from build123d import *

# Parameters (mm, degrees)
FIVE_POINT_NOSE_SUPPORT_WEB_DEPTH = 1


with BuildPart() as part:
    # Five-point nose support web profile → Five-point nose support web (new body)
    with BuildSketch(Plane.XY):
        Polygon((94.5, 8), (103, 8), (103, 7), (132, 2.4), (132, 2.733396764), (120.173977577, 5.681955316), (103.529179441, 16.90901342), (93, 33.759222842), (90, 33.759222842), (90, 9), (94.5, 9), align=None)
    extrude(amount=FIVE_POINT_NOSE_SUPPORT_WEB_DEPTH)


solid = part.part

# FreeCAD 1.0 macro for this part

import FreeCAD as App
import Part
import Sketcher

V = App.Vector
Q = App.Units.Quantity

doc = App.newDocument("Part")
params = doc.addObject("Spreadsheet::Sheet", "Params")
for row, (alias, value) in enumerate([
    ("sketch1_width", "3 mm"),
    ("sketch1_height", "1 mm"),
    ("sketch1_width2", "8.5 mm"),
    ("sketch1_width3", "4.5 mm"),
    ("pad1_length", "1 mm"),
], start=1):
    params.set(f"A{row}", alias)
    params.set(f"B{row}", "=" + value)
    params.setAlias(f"B{row}", alias)

body = doc.addObject("PartDesign::Body", "Body")

sketch1 = body.newObject("Sketcher::SketchObject", "Sketch")
sketch1.AttachmentSupport = (doc.getObject("XY_Plane"), [""])
sketch1.MapMode = "FlatFace"
sketch1.addGeometry(Part.LineSegment(V(94.5, 8, 0), V(103, 8, 0)), False)
sketch1.addGeometry(Part.LineSegment(V(103, 8, 0), V(103, 7, 0)), False)
sketch1.addGeometry(Part.LineSegment(V(103, 7, 0), V(132, 2.4, 0)), False)
sketch1.addGeometry(Part.LineSegment(V(132, 2.4, 0), V(132, 2.73, 0)), False)
sketch1.addGeometry(Part.LineSegment(V(132, 2.73, 0), V(120.17, 5.68, 0)), False)
sketch1.addGeometry(Part.LineSegment(V(120.17, 5.68, 0), V(103.53, 16.91, 0)), False)
sketch1.addGeometry(Part.LineSegment(V(103.53, 16.91, 0), V(93, 33.76, 0)), False)
sketch1.addGeometry(Part.LineSegment(V(93, 33.76, 0), V(90, 33.76, 0)), False)
sketch1.addGeometry(Part.LineSegment(V(90, 33.76, 0), V(90, 9, 0)), False)
sketch1.addGeometry(Part.LineSegment(V(90, 9, 0), V(94.5, 9, 0)), False)
sketch1.addGeometry(Part.LineSegment(V(94.5, 9, 0), V(94.5, 8, 0)), False)
sketch1.addConstraint(Sketcher.Constraint("Coincident", 0, 2, 1, 1))
sketch1.addConstraint(Sketcher.Constraint("Coincident", 1, 2, 2, 1))
sketch1.addConstraint(Sketcher.Constraint("Coincident", 2, 2, 3, 1))
sketch1.addConstraint(Sketcher.Constraint("Coincident", 3, 2, 4, 1))
sketch1.addConstraint(Sketcher.Constraint("Coincident", 4, 2, 5, 1))
sketch1.addConstraint(Sketcher.Constraint("Coincident", 5, 2, 6, 1))
sketch1.addConstraint(Sketcher.Constraint("Coincident", 6, 2, 7, 1))
sketch1.addConstraint(Sketcher.Constraint("Coincident", 7, 2, 8, 1))
sketch1.addConstraint(Sketcher.Constraint("Coincident", 8, 2, 9, 1))
sketch1.addConstraint(Sketcher.Constraint("Coincident", 9, 2, 10, 1))
sketch1.addConstraint(Sketcher.Constraint("Coincident", 10, 2, 0, 1))
sketch1.addConstraint(Sketcher.Constraint("Horizontal", 0))
sketch1.addConstraint(Sketcher.Constraint("Vertical", 1))
sketch1.addConstraint(Sketcher.Constraint("Vertical", 3))
sketch1.addConstraint(Sketcher.Constraint("Horizontal", 7))
sketch1.addConstraint(Sketcher.Constraint("Vertical", 8))
sketch1.addConstraint(Sketcher.Constraint("Horizontal", 9))
sketch1.addConstraint(Sketcher.Constraint("Vertical", 10))
sketch1.addConstraint(Sketcher.Constraint("Equal", 1, 10))
sketch1.addConstraint(Sketcher.Constraint("DistanceX", 7, 2, 7, 1, Q("3 mm")))
sketch1.addConstraint(Sketcher.Constraint("DistanceY", 1, 2, 1, 1, Q("1 mm")))
sketch1.addConstraint(Sketcher.Constraint("Angle", 4, Q("166 deg")))
sketch1.addConstraint(Sketcher.Constraint("Angle", 5, Q("146 deg")))
sketch1.addConstraint(Sketcher.Constraint("Angle", 6, Q("122 deg")))
sketch1.addConstraint(Sketcher.Constraint("DistanceX", 0, 1, 0, 2, Q("8.5 mm")))
sketch1.addConstraint(Sketcher.Constraint("DistanceX", 9, 1, 9, 2, Q("4.5 mm")))
sketch1.addConstraint(Sketcher.Constraint("DistanceX", -1, 1, 0, 2, Q("103 mm")))
sketch1.addConstraint(Sketcher.Constraint("DistanceY", -1, 1, 0, 2, Q("8 mm")))
sketch1.addConstraint(Sketcher.Constraint("DistanceX", -1, 1, 2, 2, Q("132 mm")))
sketch1.addConstraint(Sketcher.Constraint("DistanceY", -1, 1, 2, 2, Q("2.4 mm")))
sketch1.addConstraint(Sketcher.Constraint("DistanceX", 5, 2, 4, 2, Q("16.644798 mm")))
sketch1.addConstraint(Sketcher.Constraint("Distance", 4, Q("12.18806 mm")))
sketch1.addConstraint(Sketcher.Constraint("DistanceY", 3, 1, 3, 2, Q("0.333397 mm")))
sketch1.setExpression("Constraints[19]", "Params.sketch1_width")
sketch1.setExpression("Constraints[20]", "Params.sketch1_height")
sketch1.setExpression("Constraints[24]", "Params.sketch1_width2")
sketch1.setExpression("Constraints[25]", "Params.sketch1_width3")
pad1 = body.newObject("PartDesign::Pad", "Pad")
pad1.Profile = sketch1
pad1.setExpression("Length", "Params.pad1_length")

doc.recompute()
